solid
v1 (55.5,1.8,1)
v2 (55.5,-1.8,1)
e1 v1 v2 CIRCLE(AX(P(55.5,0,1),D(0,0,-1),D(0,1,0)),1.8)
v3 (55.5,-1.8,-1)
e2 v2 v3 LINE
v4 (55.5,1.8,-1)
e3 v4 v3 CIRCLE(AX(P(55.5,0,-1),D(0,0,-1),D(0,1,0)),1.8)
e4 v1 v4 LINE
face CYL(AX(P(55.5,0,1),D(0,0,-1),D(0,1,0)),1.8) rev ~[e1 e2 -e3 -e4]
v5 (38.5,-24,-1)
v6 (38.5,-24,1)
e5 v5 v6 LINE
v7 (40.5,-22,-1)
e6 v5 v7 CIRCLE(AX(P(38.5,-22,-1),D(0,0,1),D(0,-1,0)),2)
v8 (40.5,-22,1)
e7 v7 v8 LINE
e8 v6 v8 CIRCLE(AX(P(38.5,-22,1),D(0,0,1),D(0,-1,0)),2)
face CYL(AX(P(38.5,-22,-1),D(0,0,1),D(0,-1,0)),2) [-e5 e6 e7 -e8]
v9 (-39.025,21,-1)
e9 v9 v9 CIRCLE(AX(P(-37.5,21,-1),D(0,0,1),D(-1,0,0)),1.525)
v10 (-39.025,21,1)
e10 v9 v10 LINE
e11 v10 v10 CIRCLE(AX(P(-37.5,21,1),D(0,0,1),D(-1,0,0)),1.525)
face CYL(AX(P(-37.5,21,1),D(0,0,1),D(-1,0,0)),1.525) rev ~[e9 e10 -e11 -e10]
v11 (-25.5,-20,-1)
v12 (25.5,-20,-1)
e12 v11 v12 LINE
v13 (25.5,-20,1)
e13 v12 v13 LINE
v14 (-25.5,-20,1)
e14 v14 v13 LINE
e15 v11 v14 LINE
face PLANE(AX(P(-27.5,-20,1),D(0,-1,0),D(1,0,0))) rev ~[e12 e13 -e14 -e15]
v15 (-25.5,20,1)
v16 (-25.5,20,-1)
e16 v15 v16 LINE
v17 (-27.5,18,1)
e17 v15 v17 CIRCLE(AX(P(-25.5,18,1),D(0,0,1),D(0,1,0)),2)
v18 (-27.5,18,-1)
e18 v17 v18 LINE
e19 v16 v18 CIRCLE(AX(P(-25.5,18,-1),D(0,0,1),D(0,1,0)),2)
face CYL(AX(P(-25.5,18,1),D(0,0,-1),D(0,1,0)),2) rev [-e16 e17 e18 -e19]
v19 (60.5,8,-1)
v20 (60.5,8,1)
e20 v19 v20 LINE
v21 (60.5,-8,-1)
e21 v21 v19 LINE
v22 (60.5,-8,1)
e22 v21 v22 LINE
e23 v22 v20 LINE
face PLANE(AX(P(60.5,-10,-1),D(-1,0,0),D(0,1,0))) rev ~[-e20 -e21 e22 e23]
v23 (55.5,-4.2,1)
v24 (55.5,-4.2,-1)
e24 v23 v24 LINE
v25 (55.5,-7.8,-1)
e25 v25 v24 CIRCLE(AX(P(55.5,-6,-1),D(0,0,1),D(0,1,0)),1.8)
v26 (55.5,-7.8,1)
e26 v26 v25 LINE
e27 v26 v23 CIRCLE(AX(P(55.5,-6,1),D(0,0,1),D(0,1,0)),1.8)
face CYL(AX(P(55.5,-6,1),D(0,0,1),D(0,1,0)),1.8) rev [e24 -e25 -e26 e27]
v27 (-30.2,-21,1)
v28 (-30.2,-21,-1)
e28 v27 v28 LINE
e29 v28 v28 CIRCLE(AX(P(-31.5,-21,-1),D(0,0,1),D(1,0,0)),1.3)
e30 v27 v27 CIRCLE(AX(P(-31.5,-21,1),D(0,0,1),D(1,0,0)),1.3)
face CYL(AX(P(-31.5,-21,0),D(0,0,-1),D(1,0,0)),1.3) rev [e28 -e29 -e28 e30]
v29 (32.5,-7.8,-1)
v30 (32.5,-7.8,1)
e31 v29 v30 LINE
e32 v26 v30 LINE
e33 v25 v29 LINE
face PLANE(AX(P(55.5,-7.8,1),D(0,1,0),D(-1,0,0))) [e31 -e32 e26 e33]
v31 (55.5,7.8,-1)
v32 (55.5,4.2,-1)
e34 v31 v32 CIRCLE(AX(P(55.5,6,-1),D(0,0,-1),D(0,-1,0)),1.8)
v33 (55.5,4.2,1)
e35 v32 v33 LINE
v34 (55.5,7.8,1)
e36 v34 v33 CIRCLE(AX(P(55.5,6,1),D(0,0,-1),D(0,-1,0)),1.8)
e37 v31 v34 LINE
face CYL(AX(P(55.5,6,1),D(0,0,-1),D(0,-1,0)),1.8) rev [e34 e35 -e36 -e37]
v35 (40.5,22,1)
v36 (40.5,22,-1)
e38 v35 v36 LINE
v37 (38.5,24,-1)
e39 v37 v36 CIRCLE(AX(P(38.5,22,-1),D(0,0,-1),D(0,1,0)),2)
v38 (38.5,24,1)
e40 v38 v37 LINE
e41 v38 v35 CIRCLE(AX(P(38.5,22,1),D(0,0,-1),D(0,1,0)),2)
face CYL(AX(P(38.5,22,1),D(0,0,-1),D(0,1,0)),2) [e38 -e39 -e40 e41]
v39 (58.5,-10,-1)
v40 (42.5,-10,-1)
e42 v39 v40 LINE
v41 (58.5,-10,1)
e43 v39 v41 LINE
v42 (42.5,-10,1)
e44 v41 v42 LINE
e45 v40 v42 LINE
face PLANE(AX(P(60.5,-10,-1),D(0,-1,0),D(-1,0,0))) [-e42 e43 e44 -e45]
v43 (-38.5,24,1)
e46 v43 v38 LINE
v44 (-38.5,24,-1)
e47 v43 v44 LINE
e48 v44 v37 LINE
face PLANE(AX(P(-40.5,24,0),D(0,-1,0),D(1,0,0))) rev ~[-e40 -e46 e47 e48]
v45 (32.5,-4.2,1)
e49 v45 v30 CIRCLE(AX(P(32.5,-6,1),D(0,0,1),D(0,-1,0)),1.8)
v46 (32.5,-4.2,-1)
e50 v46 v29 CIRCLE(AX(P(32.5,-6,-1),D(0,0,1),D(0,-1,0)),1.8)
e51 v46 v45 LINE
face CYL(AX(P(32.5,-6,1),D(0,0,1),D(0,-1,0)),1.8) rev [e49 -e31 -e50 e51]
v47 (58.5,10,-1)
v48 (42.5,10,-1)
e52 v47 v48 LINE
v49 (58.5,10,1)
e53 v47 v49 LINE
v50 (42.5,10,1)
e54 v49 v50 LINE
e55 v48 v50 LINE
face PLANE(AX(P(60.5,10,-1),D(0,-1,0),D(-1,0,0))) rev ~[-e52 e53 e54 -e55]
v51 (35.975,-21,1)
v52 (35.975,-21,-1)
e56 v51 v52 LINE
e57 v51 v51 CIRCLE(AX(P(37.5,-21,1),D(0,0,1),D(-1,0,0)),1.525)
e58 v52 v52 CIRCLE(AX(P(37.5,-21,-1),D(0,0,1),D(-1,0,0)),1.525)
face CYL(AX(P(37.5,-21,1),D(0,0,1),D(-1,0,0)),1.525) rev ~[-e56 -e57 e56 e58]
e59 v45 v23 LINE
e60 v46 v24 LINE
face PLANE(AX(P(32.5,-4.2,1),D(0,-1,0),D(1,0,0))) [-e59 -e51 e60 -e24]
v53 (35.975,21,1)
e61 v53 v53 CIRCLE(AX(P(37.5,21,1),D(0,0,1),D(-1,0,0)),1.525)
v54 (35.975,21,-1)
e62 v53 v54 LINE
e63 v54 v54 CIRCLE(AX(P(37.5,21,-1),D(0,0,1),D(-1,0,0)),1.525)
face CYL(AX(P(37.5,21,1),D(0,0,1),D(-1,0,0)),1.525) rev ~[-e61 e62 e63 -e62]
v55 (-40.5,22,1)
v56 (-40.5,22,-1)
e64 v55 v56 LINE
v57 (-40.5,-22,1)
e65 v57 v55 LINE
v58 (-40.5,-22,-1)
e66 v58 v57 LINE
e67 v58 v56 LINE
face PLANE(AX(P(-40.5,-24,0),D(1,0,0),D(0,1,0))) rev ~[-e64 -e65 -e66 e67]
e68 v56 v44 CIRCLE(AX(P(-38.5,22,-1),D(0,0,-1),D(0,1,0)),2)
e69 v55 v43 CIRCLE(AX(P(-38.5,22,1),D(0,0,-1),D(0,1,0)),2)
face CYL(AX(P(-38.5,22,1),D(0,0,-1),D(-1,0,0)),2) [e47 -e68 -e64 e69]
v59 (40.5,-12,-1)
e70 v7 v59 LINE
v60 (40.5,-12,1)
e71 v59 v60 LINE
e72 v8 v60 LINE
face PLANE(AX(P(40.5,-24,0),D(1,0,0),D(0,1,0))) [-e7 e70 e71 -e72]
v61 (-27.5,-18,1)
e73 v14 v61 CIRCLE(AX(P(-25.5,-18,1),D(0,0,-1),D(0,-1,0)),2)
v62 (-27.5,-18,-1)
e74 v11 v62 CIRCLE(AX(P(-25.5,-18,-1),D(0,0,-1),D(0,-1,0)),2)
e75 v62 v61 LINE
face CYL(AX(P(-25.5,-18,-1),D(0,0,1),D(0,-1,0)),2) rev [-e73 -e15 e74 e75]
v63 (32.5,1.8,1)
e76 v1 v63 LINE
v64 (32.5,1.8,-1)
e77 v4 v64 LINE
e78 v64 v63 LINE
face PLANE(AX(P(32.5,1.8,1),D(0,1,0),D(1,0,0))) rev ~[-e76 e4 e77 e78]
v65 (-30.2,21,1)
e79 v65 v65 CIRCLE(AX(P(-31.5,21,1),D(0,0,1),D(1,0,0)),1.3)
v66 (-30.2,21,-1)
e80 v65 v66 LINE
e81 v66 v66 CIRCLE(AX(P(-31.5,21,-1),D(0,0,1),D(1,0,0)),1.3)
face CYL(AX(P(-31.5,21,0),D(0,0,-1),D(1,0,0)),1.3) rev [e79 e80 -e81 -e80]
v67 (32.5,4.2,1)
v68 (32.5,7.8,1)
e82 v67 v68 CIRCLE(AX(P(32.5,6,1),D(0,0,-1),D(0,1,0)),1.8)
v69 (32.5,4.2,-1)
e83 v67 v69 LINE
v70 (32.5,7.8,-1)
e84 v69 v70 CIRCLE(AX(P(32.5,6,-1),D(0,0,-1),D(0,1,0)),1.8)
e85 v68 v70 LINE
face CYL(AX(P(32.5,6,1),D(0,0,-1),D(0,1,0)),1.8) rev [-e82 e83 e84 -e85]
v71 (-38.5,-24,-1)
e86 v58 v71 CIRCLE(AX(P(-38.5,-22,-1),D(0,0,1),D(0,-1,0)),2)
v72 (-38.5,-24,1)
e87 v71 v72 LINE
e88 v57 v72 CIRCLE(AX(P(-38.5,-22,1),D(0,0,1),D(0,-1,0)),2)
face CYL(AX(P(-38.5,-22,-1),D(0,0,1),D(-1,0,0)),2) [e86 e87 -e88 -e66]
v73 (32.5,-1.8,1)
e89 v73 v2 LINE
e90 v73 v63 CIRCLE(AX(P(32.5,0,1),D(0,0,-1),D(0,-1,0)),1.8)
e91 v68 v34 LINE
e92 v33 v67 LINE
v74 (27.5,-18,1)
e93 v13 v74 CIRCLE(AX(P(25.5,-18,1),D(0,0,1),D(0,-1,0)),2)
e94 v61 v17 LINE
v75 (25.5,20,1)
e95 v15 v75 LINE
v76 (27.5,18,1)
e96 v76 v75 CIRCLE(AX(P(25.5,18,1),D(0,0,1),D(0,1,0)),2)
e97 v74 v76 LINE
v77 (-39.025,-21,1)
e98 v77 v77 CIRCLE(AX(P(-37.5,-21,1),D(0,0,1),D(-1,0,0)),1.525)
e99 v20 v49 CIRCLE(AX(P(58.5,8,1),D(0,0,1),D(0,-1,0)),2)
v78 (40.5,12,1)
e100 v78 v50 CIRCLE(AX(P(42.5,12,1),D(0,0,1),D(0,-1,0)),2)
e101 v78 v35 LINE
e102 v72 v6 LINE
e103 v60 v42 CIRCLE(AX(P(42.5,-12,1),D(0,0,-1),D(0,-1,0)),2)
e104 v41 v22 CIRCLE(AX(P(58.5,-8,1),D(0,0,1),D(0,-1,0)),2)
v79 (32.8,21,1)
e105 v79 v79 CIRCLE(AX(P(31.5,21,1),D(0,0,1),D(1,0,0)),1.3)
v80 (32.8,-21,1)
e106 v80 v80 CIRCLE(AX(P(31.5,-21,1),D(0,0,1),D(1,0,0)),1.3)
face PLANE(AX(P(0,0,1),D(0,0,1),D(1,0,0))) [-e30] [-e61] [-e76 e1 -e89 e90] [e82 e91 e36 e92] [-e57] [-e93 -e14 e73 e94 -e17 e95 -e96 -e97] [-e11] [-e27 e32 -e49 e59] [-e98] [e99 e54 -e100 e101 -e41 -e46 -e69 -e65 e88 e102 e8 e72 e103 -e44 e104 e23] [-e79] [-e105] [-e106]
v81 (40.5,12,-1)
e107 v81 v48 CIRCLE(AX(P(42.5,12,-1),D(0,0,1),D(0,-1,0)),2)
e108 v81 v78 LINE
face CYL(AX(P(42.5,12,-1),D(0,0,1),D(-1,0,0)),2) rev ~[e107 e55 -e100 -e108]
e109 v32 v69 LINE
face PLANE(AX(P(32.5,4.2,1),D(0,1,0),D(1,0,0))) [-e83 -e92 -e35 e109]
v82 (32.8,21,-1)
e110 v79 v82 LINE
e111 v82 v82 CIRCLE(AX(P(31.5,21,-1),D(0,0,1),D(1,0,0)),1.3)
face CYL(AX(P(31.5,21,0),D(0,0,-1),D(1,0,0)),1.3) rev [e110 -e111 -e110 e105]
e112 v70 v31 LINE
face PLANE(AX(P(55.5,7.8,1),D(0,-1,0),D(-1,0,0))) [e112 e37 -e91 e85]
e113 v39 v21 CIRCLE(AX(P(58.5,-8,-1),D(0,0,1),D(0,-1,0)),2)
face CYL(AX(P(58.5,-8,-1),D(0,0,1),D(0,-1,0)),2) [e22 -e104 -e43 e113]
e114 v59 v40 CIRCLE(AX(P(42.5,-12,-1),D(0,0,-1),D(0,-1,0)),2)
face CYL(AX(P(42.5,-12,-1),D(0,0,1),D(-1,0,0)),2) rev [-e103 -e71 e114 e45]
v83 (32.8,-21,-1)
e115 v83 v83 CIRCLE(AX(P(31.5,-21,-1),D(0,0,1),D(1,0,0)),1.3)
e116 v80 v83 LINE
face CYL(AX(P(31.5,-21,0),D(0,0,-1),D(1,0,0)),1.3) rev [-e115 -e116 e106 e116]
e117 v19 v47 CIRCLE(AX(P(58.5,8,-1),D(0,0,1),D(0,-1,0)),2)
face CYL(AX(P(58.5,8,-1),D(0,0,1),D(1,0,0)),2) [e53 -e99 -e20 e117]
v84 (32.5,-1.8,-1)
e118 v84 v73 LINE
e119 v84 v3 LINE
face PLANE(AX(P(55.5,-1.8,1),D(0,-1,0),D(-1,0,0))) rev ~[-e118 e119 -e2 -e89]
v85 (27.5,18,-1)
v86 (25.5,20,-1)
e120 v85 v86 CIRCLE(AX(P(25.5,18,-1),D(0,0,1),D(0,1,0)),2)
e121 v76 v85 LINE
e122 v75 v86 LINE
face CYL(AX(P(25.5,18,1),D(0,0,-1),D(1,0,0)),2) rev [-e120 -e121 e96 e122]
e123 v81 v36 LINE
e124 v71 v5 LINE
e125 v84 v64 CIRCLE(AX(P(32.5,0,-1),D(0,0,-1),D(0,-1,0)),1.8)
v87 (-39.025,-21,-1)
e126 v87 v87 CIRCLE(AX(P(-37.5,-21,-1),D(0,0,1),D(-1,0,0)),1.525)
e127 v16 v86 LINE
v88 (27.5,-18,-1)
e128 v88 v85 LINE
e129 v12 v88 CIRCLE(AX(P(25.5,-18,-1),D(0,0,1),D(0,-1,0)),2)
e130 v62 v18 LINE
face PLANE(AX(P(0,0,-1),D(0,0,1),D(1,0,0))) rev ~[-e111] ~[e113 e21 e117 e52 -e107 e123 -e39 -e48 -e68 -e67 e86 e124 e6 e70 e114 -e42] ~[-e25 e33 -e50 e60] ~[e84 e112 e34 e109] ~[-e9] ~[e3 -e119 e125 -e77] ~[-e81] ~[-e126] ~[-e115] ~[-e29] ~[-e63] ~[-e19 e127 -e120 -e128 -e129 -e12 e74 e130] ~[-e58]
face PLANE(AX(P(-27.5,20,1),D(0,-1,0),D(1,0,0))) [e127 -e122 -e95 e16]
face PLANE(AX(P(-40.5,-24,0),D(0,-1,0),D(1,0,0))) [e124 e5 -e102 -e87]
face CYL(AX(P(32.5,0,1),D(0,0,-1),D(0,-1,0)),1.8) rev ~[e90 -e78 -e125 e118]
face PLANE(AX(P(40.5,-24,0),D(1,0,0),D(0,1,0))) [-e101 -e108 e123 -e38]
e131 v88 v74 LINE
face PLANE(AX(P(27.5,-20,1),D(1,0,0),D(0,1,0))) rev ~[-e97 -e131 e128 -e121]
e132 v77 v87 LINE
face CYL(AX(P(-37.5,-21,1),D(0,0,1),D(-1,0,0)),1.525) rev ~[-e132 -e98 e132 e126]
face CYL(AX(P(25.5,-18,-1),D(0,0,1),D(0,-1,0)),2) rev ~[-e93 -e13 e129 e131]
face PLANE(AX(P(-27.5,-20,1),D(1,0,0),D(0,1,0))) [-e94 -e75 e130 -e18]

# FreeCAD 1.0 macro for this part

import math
import FreeCAD as App
import Part
import Sketcher


def edges_at(feature, points):
    """Names of the edges that pass closest to the given points."""
    edges = feature.Shape.Edges
    near = lambda p: min(range(len(edges)), key=lambda i: edges[i].distToShape(Part.Vertex(*p))[0])
    return sorted({f"Edge{near(p) + 1}" for p in points})


def add_polygon(sketch, points):
    """Adds a closed chain of lines whose ends are joined by coincident constraints."""
    first, n = sketch.GeometryCount, len(points)
    for a, b in zip(points, points[1:] + points[:1]):
        sketch.addGeometry(Part.LineSegment(App.Vector(*a, 0), App.Vector(*b, 0)), False)
    for i in range(n):
        sketch.addConstraint(Sketcher.Constraint("Coincident", first + i, 2, first + (i + 1) % n, 1))

doc = App.newDocument("Part")
body = doc.addObject("PartDesign::Body", "Body")

sketch1 = body.newObject("Sketcher::SketchObject", "Sketch")
sketch1.AttachmentSupport = (doc.getObject("XY_Plane"), [""])
sketch1.MapMode = "FlatFace"
add_polygon(sketch1, [(-40.5, 24), (-40.5, -24), (40.5, -24), (40.5, 24)])
sketch1.addGeometry(Part.Circle(App.Vector(-31.5, -21, 0), App.Vector(0, 0, 1), 1.3), False)
sketch1.addGeometry(Part.Circle(App.Vector(31.5, -21, 0), App.Vector(0, 0, 1), 1.3), False)
sketch1.addGeometry(Part.Circle(App.Vector(-31.5, 21, 0), App.Vector(0, 0, 1), 1.3), False)
sketch1.addGeometry(Part.Circle(App.Vector(31.5, 21, 0), App.Vector(0, 0, 1), 1.3), False)
sketch1.addConstraint([
    Sketcher.Constraint("Vertical", 0),
    Sketcher.Constraint("Horizontal", 1),
    Sketcher.Constraint("Vertical", 2),
    Sketcher.Constraint("Horizontal", 3),
    Sketcher.Constraint("Equal", 4, 5),
    Sketcher.Constraint("Equal", 5, 6),
    Sketcher.Constraint("Equal", 6, 7),
    Sketcher.Constraint("Symmetric", 5, 3, 6, 3, -1, 1),
    Sketcher.Constraint("Symmetric", 4, 3, 7, 3, -1, 1),
    Sketcher.Constraint("Symmetric", 0, 2, 2, 2, -1, 1),
    Sketcher.Constraint("Symmetric", 4, 3, 5, 3, -2),
    Sketcher.Constraint("Diameter", 4, 2.6),
    Sketcher.Constraint("DistanceX", 1, 1, 1, 2, 81.0),
    Sketcher.Constraint("DistanceY", 0, 2, 0, 1, 48.0),
    Sketcher.Constraint("DistanceY", 4, 3, -1, 1, 21.0),
    Sketcher.Constraint("DistanceX", 4, 3, 5, 3, 63.0),
])
pad1 = body.newObject("PartDesign::Pad", "Pad")
pad1.Profile = sketch1
pad1.Length = 2
pad1.Midplane = True

sketch2 = body.newObject("Sketcher::SketchObject", "Sketch001")
sketch2.AttachmentSupport = (doc.getObject("XY_Plane"), [""])
sketch2.MapMode = "FlatFace"
sketch2.AttachmentOffset = App.Placement(App.Vector(0, 0, 1), App.Rotation())
sketch2.addGeometry([
    Part.Circle(App.Vector(37.5, 21, 0), App.Vector(0, 0, 1), 1.5),
    Part.Circle(App.Vector(37.5, -21, 0), App.Vector(0, 0, 1), 1.5),
    Part.Circle(App.Vector(-37.5, -21, 0), App.Vector(0, 0, 1), 1.5),
    Part.Circle(App.Vector(-37.5, 21, 0), App.Vector(0, 0, 1), 1.5),
], False)
sketch2.addConstraint([
    Sketcher.Constraint("Equal", 0, 1),
    Sketcher.Constraint("Equal", 1, 2),
    Sketcher.Constraint("Equal", 2, 3),
    Sketcher.Constraint("Symmetric", 0, 3, 2, 3, -1, 1),
    Sketcher.Constraint("Symmetric", 1, 3, 3, 3, -1, 1),
    Sketcher.Constraint("Symmetric", 1, 3, 2, 3, -2),
    Sketcher.Constraint("Diameter", 0, 3.05),
    Sketcher.Constraint("DistanceY", -1, 1, 0, 3, 21.0),
    Sketcher.Constraint("DistanceX", 2, 3, 1, 3, 75.0),
])
pocket1 = body.newObject("PartDesign::Pocket", "Pocket")
pocket1.Profile = sketch2
pocket1.Length = 32
pocket1.Midplane = True

sketch3 = body.newObject("Sketcher::SketchObject", "Sketch002")
sketch3.AttachmentSupport = (doc.getObject("XY_Plane"), [""])
sketch3.MapMode = "FlatFace"
sketch3.AttachmentOffset = App.Placement(App.Vector(0, 0, 1), App.Rotation())
add_polygon(sketch3, [(-28, 20), (-28, -20), (28, -20), (28, 20)])
sketch3.addConstraint([
    Sketcher.Constraint("Vertical", 0),
    Sketcher.Constraint("Horizontal", 1),
    Sketcher.Constraint("Vertical", 2),
    Sketcher.Constraint("Horizontal", 3),
    Sketcher.Constraint("Symmetric", 0, 2, 2, 2, -1, 1),
    Sketcher.Constraint("DistanceX", 1, 1, 1, 2, 55.0),
    Sketcher.Constraint("DistanceY", 0, 2, 0, 1, 40.0),
])
pocket2 = body.newObject("PartDesign::Pocket", "Pocket001")
pocket2.Profile = sketch3
pocket2.Length = 42
pocket2.Midplane = True
doc.recompute()

fillet = body.newObject("PartDesign::Fillet", "Fillet")
fillet.Base = (pocket2, edges_at(pocket2, [
    (27.5, 20, 0),
    (27.5, -20, 0),
    (-27.5, -20, 0),
    (-27.5, 20, 0),
    (40.5, -24, 0),
    (-40.5, -24, 0),
    (-40.5, 24, 0),
    (40.5, 24, 0),
]))
fillet.Radius = 2

sketch4 = body.newObject("Sketcher::SketchObject", "Sketch003")
sketch4.AttachmentSupport = (doc.getObject("XY_Plane"), [""])
sketch4.MapMode = "FlatFace"
sketch4.AttachmentOffset = App.Placement(App.Vector(0, 0, -1), App.Rotation())
add_polygon(sketch4, [(60, 10), (60, -10), (40, -10), (40, 10)])
sketch4.addConstraint([
    Sketcher.Constraint("Vertical", 0),
    Sketcher.Constraint("Horizontal", 1),
    Sketcher.Constraint("Vertical", 2),
    Sketcher.Constraint("Horizontal", 3),
    Sketcher.Constraint("Equal", 3, 0),
    Sketcher.Constraint("DistanceX", 1, 2, 1, 1, 20.0),
    Sketcher.Constraint("DistanceY", 0, 2, -1, 1, 10.0),
    Sketcher.Constraint("DistanceX", -1, 1, 0, 2, 60.5),
])
pad2 = body.newObject("PartDesign::Pad", "Pad001")
pad2.Profile = sketch4
pad2.Length = 2
doc.recompute()

fillet2 = body.newObject("PartDesign::Fillet", "Fillet001")
fillet2.Base = (pad2, edges_at(pad2, [
    (40.5, 10, 0),
    (40.5, -10, 0),
    (60.5, -10, 0),
    (60.5, 10, 0),
]))
fillet2.Radius = 2

sketch5 = body.newObject("Sketcher::SketchObject", "Sketch004")
sketch5.AttachmentSupport = (doc.getObject("XY_Plane"), [""])
sketch5.MapMode = "FlatFace"
sketch5.AttachmentOffset = App.Placement(App.Vector(0, 0, 1), App.Rotation())
sketch5.addGeometry([
    Part.LineSegment(App.Vector(55.5, 1.8, 0), App.Vector(32.5, 1.8, 0)),
    Part.ArcOfCircle(Part.Circle(App.Vector(32.5, 0, 0), App.Vector(0, 0, 1), 1.8), math.radians(90), math.radians(270)),
    Part.LineSegment(App.Vector(32.5, -1.8, 0), App.Vector(55.5, -1.8, 0)),
    Part.ArcOfCircle(Part.Circle(App.Vector(55.5, 0, 0), App.Vector(0, 0, 1), 1.8), math.radians(-90), math.radians(90)),
    Part.LineSegment(App.Vector(32.5, 4.2, 0), App.Vector(55.5, 4.2, 0)),
    Part.ArcOfCircle(Part.Circle(App.Vector(55.5, 6, 0), App.Vector(0, 0, 1), 1.8), math.radians(-90), math.radians(90)),
    Part.LineSegment(App.Vector(55.5, 7.8, 0), App.Vector(32.5, 7.8, 0)),
    Part.ArcOfCircle(Part.Circle(App.Vector(32.5, 6, 0), App.Vector(0, 0, 1), 1.8), math.radians(90), math.radians(270)),
    Part.LineSegment(App.Vector(55.5, -4.2, 0), App.Vector(32.5, -4.2, 0)),
    Part.ArcOfCircle(Part.Circle(App.Vector(32.5, -6, 0), App.Vector(0, 0, 1), 1.8), math.radians(90), math.radians(270)),
    Part.LineSegment(App.Vector(32.5, -7.8, 0), App.Vector(55.5, -7.8, 0)),
    Part.ArcOfCircle(Part.Circle(App.Vector(55.5, -6, 0), App.Vector(0, 0, 1), 1.8), math.radians(-90), math.radians(90)),
], False)
sketch5.addConstraint([
    Sketcher.Constraint("Tangent", 0, 2, 1, 1),
    Sketcher.Constraint("Tangent", 1, 2, 2, 1),
    Sketcher.Constraint("Tangent", 2, 2, 3, 1),
    Sketcher.Constraint("Tangent", 3, 2, 0, 1),
    Sketcher.Constraint("Tangent", 4, 2, 5, 1),
    Sketcher.Constraint("Tangent", 5, 2, 6, 1),
    Sketcher.Constraint("Tangent", 6, 2, 7, 1),
    Sketcher.Constraint("Tangent", 7, 2, 4, 1),
    Sketcher.Constraint("Tangent", 8, 2, 9, 1),
    Sketcher.Constraint("Tangent", 9, 2, 10, 1),
    Sketcher.Constraint("Tangent", 10, 2, 11, 1),
    Sketcher.Constraint("Tangent", 11, 2, 8, 1),
    Sketcher.Constraint("Horizontal", 0),
    Sketcher.Constraint("Horizontal", 2),
    Sketcher.Constraint("Horizontal", 4),
    Sketcher.Constraint("Horizontal", 6),
    Sketcher.Constraint("Horizontal", 8),
    Sketcher.Constraint("Horizontal", 10),
    Sketcher.Constraint("Equal", 3, 5),
    Sketcher.Constraint("Equal", 7, 9),
    Sketcher.Constraint("Symmetric", 7, 3, 9, 3, -1),
    Sketcher.Constraint("PointOnObject", 1, 3, -1),
    Sketcher.Constraint("Vertical", 3, 3, 5, 3),
    Sketcher.Constraint("Vertical", 1, 3, 7, 3),
    Sketcher.Constraint("Vertical", 5, 3, 11, 3),
    Sketcher.Constraint("Radius", 1, 1.8),
    Sketcher.Constraint("DistanceX", 0, 2, 0, 1, 23.0),
    Sketcher.Constraint("DistanceY", -1, 1, 5, 3, 6.0),
    Sketcher.Constraint("DistanceX", -1, 1, 1, 3, 32.5),
])
pocket3 = body.newObject("PartDesign::Pocket", "Pocket002")
pocket3.Profile = sketch5
pocket3.Length = 22
pocket3.Midplane = True

doc.recompute()
